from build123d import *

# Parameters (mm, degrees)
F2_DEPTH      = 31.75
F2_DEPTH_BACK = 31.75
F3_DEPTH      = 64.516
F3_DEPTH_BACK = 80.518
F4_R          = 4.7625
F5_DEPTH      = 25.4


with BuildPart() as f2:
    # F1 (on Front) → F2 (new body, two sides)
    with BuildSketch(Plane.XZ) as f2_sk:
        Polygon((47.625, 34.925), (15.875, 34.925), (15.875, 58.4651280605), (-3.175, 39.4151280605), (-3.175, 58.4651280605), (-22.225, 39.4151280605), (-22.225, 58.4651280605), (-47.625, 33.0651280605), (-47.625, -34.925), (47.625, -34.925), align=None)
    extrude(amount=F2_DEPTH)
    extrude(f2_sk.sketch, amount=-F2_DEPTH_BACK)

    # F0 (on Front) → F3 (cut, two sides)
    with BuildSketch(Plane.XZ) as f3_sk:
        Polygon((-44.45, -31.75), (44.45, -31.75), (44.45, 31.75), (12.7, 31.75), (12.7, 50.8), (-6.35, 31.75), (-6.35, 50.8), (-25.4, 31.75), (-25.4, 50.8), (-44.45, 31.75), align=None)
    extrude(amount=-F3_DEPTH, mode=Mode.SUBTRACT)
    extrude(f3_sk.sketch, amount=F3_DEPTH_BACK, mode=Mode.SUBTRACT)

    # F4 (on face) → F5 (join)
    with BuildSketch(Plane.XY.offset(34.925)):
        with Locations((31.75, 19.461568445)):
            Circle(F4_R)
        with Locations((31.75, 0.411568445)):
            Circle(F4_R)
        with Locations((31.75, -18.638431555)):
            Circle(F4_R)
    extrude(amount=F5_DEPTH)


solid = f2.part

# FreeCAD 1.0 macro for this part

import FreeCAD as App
import Part
import Sketcher
Q = App.Units.Quantity

doc = App.newDocument("Part")
body = doc.addObject("PartDesign::Body", "Body")

# Sketch on XZ plane
sketch1 = doc.addObject("Sketcher::SketchObject", "Sketch")
body.addObject(sketch1)
sketch1.AttachmentSupport = (doc.XZ_Plane, [""])
sketch1.MapMode = "FlatFace"
sketch1.addGeometry(Part.LineSegment(App.Vector(48, 35, 0), App.Vector(16, 35, 0)), False)
sketch1.addGeometry(Part.LineSegment(App.Vector(16, 35, 0), App.Vector(16, 58, 0)), False)
sketch1.addGeometry(Part.LineSegment(App.Vector(16, 58, 0), App.Vector(-3, 39, 0)), False)
sketch1.addGeometry(Part.LineSegment(App.Vector(-3, 39, 0), App.Vector(-3, 58, 0)), False)
sketch1.addGeometry(Part.LineSegment(App.Vector(-3, 58, 0), App.Vector(-22, 39, 0)), False)
sketch1.addGeometry(Part.LineSegment(App.Vector(-22, 39, 0), App.Vector(-22, 58, 0)), False)
sketch1.addGeometry(Part.LineSegment(App.Vector(-22, 58, 0), App.Vector(-48, 33, 0)), False)
sketch1.addGeometry(Part.LineSegment(App.Vector(-48, 33, 0), App.Vector(-48, -35, 0)), False)
sketch1.addGeometry(Part.LineSegment(App.Vector(-48, -35, 0), App.Vector(48, -35, 0)), False)
sketch1.addGeometry(Part.LineSegment(App.Vector(48, -35, 0), App.Vector(48, 35, 0)), False)
sketch1.addConstraint(Sketcher.Constraint("Coincident", 0, 2, 1, 1))
sketch1.addConstraint(Sketcher.Constraint("Coincident", 1, 2, 2, 1))
sketch1.addConstraint(Sketcher.Constraint("Coincident", 2, 2, 3, 1))
sketch1.addConstraint(Sketcher.Constraint("Coincident", 3, 2, 4, 1))
sketch1.addConstraint(Sketcher.Constraint("Coincident", 4, 2, 5, 1))
sketch1.addConstraint(Sketcher.Constraint("Coincident", 5, 2, 6, 1))
sketch1.addConstraint(Sketcher.Constraint("Coincident", 6, 2, 7, 1))
sketch1.addConstraint(Sketcher.Constraint("Coincident", 7, 2, 8, 1))
sketch1.addConstraint(Sketcher.Constraint("Coincident", 8, 2, 9, 1))
sketch1.addConstraint(Sketcher.Constraint("Coincident", 9, 2, 0, 1))
sketch1.addConstraint(Sketcher.Constraint("Horizontal", 0))
sketch1.addConstraint(Sketcher.Constraint("Vertical", 1))
sketch1.addConstraint(Sketcher.Constraint("Vertical", 3))
sketch1.addConstraint(Sketcher.Constraint("Vertical", 5))
sketch1.addConstraint(Sketcher.Constraint("Vertical", 7))
sketch1.addConstraint(Sketcher.Constraint("Horizontal", 8))
sketch1.addConstraint(Sketcher.Constraint("Vertical", 9))
sketch1.addConstraint(Sketcher.Constraint("Symmetric", 7, 2, 9, 2, -1, 1))
sketch1.addConstraint(Sketcher.Constraint("Parallel", 2, 4))
sketch1.addConstraint(Sketcher.Constraint("Parallel", 4, 6))
sketch1.addConstraint(Sketcher.Constraint("Horizontal", 1, 2, 3, 2))
sketch1.addConstraint(Sketcher.Constraint("Horizontal", 2, 2, 4, 2))
sketch1.addConstraint(Sketcher.Constraint("Horizontal", 3, 2, 5, 2))
sketch1.addConstraint(Sketcher.Constraint("Angle", 2, Q("-135 deg")))
sketch1.addConstraint(Sketcher.Constraint("DistanceX", 6, 2, 4, 2, Q("1 in")))
sketch1.addConstraint(Sketcher.Constraint("DistanceX", 2, 2, 8, 2, Q("2 in")))
sketch1.addConstraint(Sketcher.Constraint("DistanceX", 0, 2, 0, 1, Q("1.25 in")))
sketch1.addConstraint(Sketcher.Constraint("DistanceY", 9, 1, 9, 2, Q("2.75 in")))
sketch1.addConstraint(Sketcher.Constraint("DistanceY", 1, 1, 1, 2, 23.540128))
pad1 = doc.addObject("PartDesign::Pad", "Pad")
body.addObject(pad1)
pad1.Profile = sketch1
pad1.Type = "TwoLengths"
pad1.Length = Q("1.25 in")
pad1.Length2 = Q("1.25 in")

# Sketch on XZ plane
sketch2 = doc.addObject("Sketcher::SketchObject", "Sketch001")
body.addObject(sketch2)
sketch2.AttachmentSupport = (doc.XZ_Plane, [""])
sketch2.MapMode = "FlatFace"
sketch2.addGeometry(Part.LineSegment(App.Vector(-44, -32, 0), App.Vector(44, -32, 0)), False)
sketch2.addGeometry(Part.LineSegment(App.Vector(44, -32, 0), App.Vector(44, 32, 0)), False)
sketch2.addGeometry(Part.LineSegment(App.Vector(44, 32, 0), App.Vector(13, 32, 0)), False)
sketch2.addGeometry(Part.LineSegment(App.Vector(13, 32, 0), App.Vector(13, 51, 0)), False)
sketch2.addGeometry(Part.LineSegment(App.Vector(13, 51, 0), App.Vector(-6, 32, 0)), False)
sketch2.addGeometry(Part.LineSegment(App.Vector(-6, 32, 0), App.Vector(-6, 51, 0)), False)
sketch2.addGeometry(Part.LineSegment(App.Vector(-6, 51, 0), App.Vector(-25, 32, 0)), False)
sketch2.addGeometry(Part.LineSegment(App.Vector(-25, 32, 0), App.Vector(-25, 51, 0)), False)
sketch2.addGeometry(Part.LineSegment(App.Vector(-25, 51, 0), App.Vector(-44, 32, 0)), False)
sketch2.addGeometry(Part.LineSegment(App.Vector(-44, 32, 0), App.Vector(-44, -32, 0)), False)
sketch2.addConstraint(Sketcher.Constraint("Coincident", 0, 2, 1, 1))
sketch2.addConstraint(Sketcher.Constraint("Coincident", 1, 2, 2, 1))
sketch2.addConstraint(Sketcher.Constraint("Coincident", 2, 2, 3, 1))
sketch2.addConstraint(Sketcher.Constraint("Coincident", 3, 2, 4, 1))
sketch2.addConstraint(Sketcher.Constraint("Coincident", 4, 2, 5, 1))
sketch2.addConstraint(Sketcher.Constraint("Coincident", 5, 2, 6, 1))
sketch2.addConstraint(Sketcher.Constraint("Coincident", 6, 2, 7, 1))
sketch2.addConstraint(Sketcher.Constraint("Coincident", 7, 2, 8, 1))
sketch2.addConstraint(Sketcher.Constraint("Coincident", 8, 2, 9, 1))
sketch2.addConstraint(Sketcher.Constraint("Coincident", 9, 2, 0, 1))
sketch2.addConstraint(Sketcher.Constraint("Horizontal", 0))
sketch2.addConstraint(Sketcher.Constraint("Vertical", 1))
sketch2.addConstraint(Sketcher.Constraint("Horizontal", 2))
sketch2.addConstraint(Sketcher.Constraint("Vertical", 3))
sketch2.addConstraint(Sketcher.Constraint("Vertical", 5))
sketch2.addConstraint(Sketcher.Constraint("Vertical", 7))
sketch2.addConstraint(Sketcher.Constraint("Vertical", 9))
sketch2.addConstraint(Sketcher.Constraint("Symmetric", 0, 2, 8, 2, -1, 1))
sketch2.addConstraint(Sketcher.Constraint("Parallel", 4, 6))
sketch2.addConstraint(Sketcher.Constraint("Parallel", 6, 8))
sketch2.addConstraint(Sketcher.Constraint("Horizontal", 2, 2, 4, 2))
sketch2.addConstraint(Sketcher.Constraint("Horizontal", 3, 2, 5, 2))
sketch2.addConstraint(Sketcher.Constraint("Horizontal", 4, 2, 6, 2))
sketch2.addConstraint(Sketcher.Constraint("Horizontal", 5, 2, 7, 2))
sketch2.addConstraint(Sketcher.Constraint("Horizontal", 6, 2, 8, 2))
sketch2.addConstraint(Sketcher.Constraint("DistanceX", 0, 1, 0, 2, Q("3.5 in")))
sketch2.addConstraint(Sketcher.Constraint("DistanceY", 1, 1, 1, 2, Q("2.5 in")))
sketch2.addConstraint(Sketcher.Constraint("DistanceY", -1, 1, 3, 2, Q("2 in")))
sketch2.addConstraint(Sketcher.Constraint("DistanceX", 6, 2, -1, 1, Q("1 in")))
pocket1 = doc.addObject("PartDesign::Pocket", "Pocket")
body.addObject(pocket1)
pocket1.Profile = sketch2
pocket1.Type = "ThroughAll"
pocket1.Midplane = True

# Sketch on XY plane
sketch3 = doc.addObject("Sketcher::SketchObject", "Sketch002")
body.addObject(sketch3)
sketch3.AttachmentSupport = (doc.XY_Plane, [""])
sketch3.MapMode = "FlatFace"
sketch3.AttachmentOffset = App.Placement(App.Vector(0, 0, 1.375 * 25.4), App.Rotation())
sketch3.addGeometry(Part.Circle(App.Vector(31.8, 19.5, 0), App.Vector(0, 0, 1), 4.8), False)
sketch3.addGeometry(Part.Circle(App.Vector(31.8, 0.4, 0), App.Vector(0, 0, 1), 4.8), False)
sketch3.addGeometry(Part.Circle(App.Vector(31.8, -18.6, 0), App.Vector(0, 0, 1), 4.8), False)
sketch3.addConstraint(Sketcher.Constraint("Equal", 0, 1))
sketch3.addConstraint(Sketcher.Constraint("Equal", 1, 2))
sketch3.addConstraint(Sketcher.Constraint("Vertical", 0, 3, 1, 3))
sketch3.addConstraint(Sketcher.Constraint("Vertical", 1, 3, 2, 3))
sketch3.addConstraint(Sketcher.Constraint("Diameter", 0, Q("0.375 in")))
sketch3.addConstraint(Sketcher.Constraint("DistanceY", 2, 3, 0, 3, Q("1.5 in")))
sketch3.addConstraint(Sketcher.Constraint("DistanceX", -1, 1, 0, 3, Q("1.25 in")))
sketch3.addConstraint(Sketcher.Constraint("DistanceY", 1, 3, 0, 3, Q("0.75 in")))
sketch3.addConstraint(Sketcher.Constraint("DistanceY", -1, 1, 0, 3, 19.461568))
pad2 = doc.addObject("PartDesign::Pad", "Pad001")
body.addObject(pad2)
pad2.Profile = sketch3
pad2.Length = Q("1 in")

doc.recompute()
